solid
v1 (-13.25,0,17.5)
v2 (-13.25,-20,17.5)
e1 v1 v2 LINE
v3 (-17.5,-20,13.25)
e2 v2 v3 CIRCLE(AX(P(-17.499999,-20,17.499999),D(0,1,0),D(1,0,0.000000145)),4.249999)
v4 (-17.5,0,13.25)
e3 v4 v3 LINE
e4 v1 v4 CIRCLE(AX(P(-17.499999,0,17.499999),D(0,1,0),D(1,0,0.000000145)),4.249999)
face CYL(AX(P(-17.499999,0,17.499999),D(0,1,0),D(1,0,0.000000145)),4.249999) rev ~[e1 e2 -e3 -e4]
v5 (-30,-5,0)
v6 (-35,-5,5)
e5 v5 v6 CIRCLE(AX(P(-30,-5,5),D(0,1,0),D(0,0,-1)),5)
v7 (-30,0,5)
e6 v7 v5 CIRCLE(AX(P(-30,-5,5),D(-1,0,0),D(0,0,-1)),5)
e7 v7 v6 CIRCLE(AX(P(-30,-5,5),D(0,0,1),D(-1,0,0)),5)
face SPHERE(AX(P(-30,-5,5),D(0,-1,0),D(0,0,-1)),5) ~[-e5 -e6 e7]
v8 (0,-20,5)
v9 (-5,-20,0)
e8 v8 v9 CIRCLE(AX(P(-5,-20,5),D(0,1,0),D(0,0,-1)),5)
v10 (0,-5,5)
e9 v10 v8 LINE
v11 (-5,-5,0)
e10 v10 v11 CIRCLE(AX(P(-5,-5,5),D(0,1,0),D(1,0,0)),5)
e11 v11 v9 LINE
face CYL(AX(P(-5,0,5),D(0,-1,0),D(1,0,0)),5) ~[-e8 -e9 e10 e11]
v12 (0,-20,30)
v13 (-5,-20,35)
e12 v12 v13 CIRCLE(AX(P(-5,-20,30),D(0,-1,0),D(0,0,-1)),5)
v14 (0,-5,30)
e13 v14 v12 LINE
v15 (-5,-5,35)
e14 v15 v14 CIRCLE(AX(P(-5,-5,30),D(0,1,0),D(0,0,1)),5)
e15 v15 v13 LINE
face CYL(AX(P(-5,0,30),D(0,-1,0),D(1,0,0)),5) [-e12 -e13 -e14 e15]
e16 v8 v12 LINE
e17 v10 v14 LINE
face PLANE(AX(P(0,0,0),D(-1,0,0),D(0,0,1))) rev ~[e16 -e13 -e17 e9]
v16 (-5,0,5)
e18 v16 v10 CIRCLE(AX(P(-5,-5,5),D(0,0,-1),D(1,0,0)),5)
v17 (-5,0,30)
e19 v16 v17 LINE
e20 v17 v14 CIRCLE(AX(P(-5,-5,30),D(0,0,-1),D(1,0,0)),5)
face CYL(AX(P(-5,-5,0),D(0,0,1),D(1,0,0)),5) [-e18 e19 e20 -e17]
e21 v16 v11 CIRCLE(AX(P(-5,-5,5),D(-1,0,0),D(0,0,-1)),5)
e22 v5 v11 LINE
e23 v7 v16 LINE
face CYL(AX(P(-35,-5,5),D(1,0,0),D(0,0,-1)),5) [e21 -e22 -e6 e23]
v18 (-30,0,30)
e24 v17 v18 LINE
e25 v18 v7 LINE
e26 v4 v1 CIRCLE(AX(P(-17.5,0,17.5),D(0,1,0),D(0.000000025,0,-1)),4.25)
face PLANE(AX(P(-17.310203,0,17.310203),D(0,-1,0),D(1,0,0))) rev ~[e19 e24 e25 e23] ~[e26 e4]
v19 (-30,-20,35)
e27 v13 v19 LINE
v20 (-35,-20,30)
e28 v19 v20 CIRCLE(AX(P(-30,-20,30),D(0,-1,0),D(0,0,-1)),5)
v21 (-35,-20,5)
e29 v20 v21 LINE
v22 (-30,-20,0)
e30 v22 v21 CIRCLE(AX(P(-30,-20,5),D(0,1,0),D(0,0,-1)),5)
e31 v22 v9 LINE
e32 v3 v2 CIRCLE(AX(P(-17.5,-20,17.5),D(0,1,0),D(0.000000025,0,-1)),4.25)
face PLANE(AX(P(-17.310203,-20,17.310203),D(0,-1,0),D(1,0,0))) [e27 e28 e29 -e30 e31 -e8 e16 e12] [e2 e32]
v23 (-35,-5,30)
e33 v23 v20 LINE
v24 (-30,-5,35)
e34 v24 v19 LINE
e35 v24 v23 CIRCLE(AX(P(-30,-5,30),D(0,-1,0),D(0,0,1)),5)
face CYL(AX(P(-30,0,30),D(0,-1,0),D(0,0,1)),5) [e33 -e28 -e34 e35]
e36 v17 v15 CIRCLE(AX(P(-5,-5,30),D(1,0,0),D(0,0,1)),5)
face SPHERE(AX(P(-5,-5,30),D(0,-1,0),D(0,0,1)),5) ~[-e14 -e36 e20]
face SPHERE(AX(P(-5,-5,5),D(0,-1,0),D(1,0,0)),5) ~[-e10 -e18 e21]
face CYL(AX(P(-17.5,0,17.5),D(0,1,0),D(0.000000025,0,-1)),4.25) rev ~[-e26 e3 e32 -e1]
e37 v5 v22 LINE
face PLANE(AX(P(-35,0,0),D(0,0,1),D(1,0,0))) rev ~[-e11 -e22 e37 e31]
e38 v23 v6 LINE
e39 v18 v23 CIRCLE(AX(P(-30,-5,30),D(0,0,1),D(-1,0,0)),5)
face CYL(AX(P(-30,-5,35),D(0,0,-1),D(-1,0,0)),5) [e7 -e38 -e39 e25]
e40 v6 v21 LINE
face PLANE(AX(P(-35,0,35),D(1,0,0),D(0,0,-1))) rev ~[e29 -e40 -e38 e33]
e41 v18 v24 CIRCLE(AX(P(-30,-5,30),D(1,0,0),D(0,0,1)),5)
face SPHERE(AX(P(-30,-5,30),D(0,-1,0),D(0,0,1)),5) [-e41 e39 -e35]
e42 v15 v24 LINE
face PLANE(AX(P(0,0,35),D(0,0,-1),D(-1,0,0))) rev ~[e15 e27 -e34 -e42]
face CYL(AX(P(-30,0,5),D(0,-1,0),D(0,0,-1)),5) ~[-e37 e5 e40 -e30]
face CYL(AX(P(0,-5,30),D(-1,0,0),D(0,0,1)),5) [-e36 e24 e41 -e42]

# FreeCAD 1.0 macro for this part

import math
import FreeCAD as App
import Part
import Sketcher
from FreeCAD import Vector
Q = App.Units.Quantity


def edges_at(feature, points):
    """Names of the edges that pass closest to the given points."""
    edges = feature.Shape.Edges
    near = lambda p: min(range(len(edges)), key=lambda i: edges[i].distToShape(Part.Vertex(*p))[0])
    return sorted({f"Edge{near(p) + 1}" for p in points})

doc = App.newDocument("Part")
body = doc.addObject("PartDesign::Body", "Body")

# Sketch on XZ plane
sketch1 = body.newObject("Sketcher::SketchObject", "Sketch")
sketch1.AttachmentSupport = (doc.getObject("XZ_Plane"), [""])
sketch1.MapMode = "FlatFace"
sketch1.addGeometry(Part.LineSegment(Vector(0, 0, 0), Vector(0, 35, 0)), False)
sketch1.addGeometry(Part.LineSegment(Vector(0, 35, 0), Vector(-35, 35, 0)), False)
sketch1.addGeometry(Part.LineSegment(Vector(-35, 35, 0), Vector(-35, 0, 0)), False)
sketch1.addGeometry(Part.LineSegment(Vector(-35, 0, 0), Vector(0, 0, 0)), False)
sketch1.addGeometry(Part.ArcOfCircle(Part.Circle(Vector(-17.5, 17.5, 0), Vector(0, 0, 1), 4.3), math.radians(0), math.radians(270)), False)
sketch1.addGeometry(Part.ArcOfCircle(Part.Circle(Vector(-17.5, 17.5, 0), Vector(0, 0, 1), 4.2), math.radians(-90), math.radians(0)), False)
sketch1.addConstraint(Sketcher.Constraint("Coincident", 0, 2, 1, 1))
sketch1.addConstraint(Sketcher.Constraint("Coincident", 1, 2, 2, 1))
sketch1.addConstraint(Sketcher.Constraint("Coincident", 2, 2, 3, 1))
sketch1.addConstraint(Sketcher.Constraint("Coincident", 3, 2, 0, 1))
sketch1.addConstraint(Sketcher.Constraint("Tangent", 4, 1, 5, 2))
sketch1.addConstraint(Sketcher.Constraint("Coincident", 5, 1, 4, 2))
sketch1.addConstraint(Sketcher.Constraint("Vertical", 0))
sketch1.addConstraint(Sketcher.Constraint("Horizontal", 1))
sketch1.addConstraint(Sketcher.Constraint("Vertical", 2))
sketch1.addConstraint(Sketcher.Constraint("Horizontal", 3))
sketch1.addConstraint(Sketcher.Constraint("Coincident", 3, 2, -1, 1))
sketch1.addConstraint(Sketcher.Constraint("Horizontal", 5, 3, 4, 1))
sketch1.addConstraint(Sketcher.Constraint("Vertical", 4, 3, 5, 1))
sketch1.addConstraint(Sketcher.Constraint("Equal", 3, 0))
sketch1.addConstraint(Sketcher.Constraint("DistanceX", 1, 2, 1, 1, Q("35 mm")))
sketch1.addConstraint(Sketcher.Constraint("Radius", 4, Q("4.25 mm")))
sketch1.addConstraint(Sketcher.Constraint("DistanceX", 4, 3, -1, 1, Q("17.5 mm")))
sketch1.addConstraint(Sketcher.Constraint("DistanceY", -1, 1, 4, 3, Q("17.5 mm")))
pad1 = body.newObject("PartDesign::Pad", "Pad")
pad1.Profile = sketch1
pad1.Length = 20
doc.recompute()

fillet = body.newObject("PartDesign::Fillet", "Fillet")
fillet.Base = (pad1, edges_at(pad1, [
    (-35, -10, 35),
    (-35, -10, 0),
    (0, -10, 35),
    (0, -10, 0),
    (-17.5, 0, 35),
    (0, 0, 17.5),
    (-17.5, 0, 0),
    (-35, 0, 17.5),
]))
fillet.Radius = 5

doc.recompute()
